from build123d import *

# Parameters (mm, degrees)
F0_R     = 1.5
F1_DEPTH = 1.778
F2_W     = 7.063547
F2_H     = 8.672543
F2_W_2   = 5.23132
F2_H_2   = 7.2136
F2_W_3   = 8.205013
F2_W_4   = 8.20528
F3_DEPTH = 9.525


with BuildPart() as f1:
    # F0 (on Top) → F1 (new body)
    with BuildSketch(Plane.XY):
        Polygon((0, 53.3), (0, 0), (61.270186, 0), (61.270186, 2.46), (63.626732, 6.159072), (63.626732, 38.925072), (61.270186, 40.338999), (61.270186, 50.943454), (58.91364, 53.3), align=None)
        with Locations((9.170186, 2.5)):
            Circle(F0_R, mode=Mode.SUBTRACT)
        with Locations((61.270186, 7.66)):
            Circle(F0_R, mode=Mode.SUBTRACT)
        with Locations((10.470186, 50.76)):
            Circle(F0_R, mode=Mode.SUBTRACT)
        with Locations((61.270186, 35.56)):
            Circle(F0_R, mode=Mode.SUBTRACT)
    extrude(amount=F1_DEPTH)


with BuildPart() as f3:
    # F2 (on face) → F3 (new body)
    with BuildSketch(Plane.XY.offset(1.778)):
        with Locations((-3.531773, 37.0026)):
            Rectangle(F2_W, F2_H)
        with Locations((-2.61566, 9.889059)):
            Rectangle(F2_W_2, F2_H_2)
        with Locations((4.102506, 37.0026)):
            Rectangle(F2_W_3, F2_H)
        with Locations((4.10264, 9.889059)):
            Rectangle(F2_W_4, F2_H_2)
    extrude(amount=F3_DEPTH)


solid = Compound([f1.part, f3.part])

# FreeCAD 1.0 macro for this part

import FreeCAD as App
import Part
import Sketcher
from FreeCAD import Vector
Q = App.Units.Quantity

doc = App.newDocument("Part")
body = doc.addObject("PartDesign::Body", "Body")

# Sketch on XY plane
sketch1 = doc.addObject("Sketcher::SketchObject", "Sketch")
body.addObject(sketch1)
sketch1.AttachmentSupport = (doc.XY_Plane, [""])
sketch1.MapMode = "FlatFace"
sketch1.addGeometry([
    Part.LineSegment(Vector(0, 53.3, 0), Vector(0, 0, 0)),  # 0
    Part.LineSegment(Vector(0, 0, 0), Vector(61.270186, 0, 0)),  # 1
    Part.LineSegment(Vector(61.270186, 0, 0), Vector(61.270186, 2.46, 0)),  # 2
    Part.LineSegment(Vector(61.270186, 2.46, 0), Vector(63.626732, 6.159072, 0)),  # 3
    Part.LineSegment(Vector(63.626732, 6.159072, 0), Vector(63.626732, 38.925072, 0)),  # 4
    Part.LineSegment(Vector(63.626732, 38.925072, 0), Vector(61.270186, 40.338999, 0)),  # 5
    Part.LineSegment(Vector(61.270186, 40.338999, 0), Vector(61.270186, 50.943454, 0)),  # 6
    Part.LineSegment(Vector(61.270186, 50.943454, 0), Vector(58.91364, 53.3, 0)),  # 7
    Part.LineSegment(Vector(58.91364, 53.3, 0), Vector(0, 53.3, 0)),  # 8
    Part.Circle(Vector(9.170186, 2.5, 0), Vector(0, 0, 1), 1.5),  # 9
    Part.Circle(Vector(61.270186, 7.66, 0), Vector(0, 0, 1), 1.5),  # 10
    Part.Circle(Vector(10.470186, 50.76, 0), Vector(0, 0, 1), 1.5),  # 11
    Part.Circle(Vector(61.270186, 35.56, 0), Vector(0, 0, 1), 1.5),  # 12
], False)
sketch1.addConstraint([
    Sketcher.Constraint("Coincident", 0, 2, 1, 1),
    Sketcher.Constraint("Coincident", 1, 2, 2, 1),
    Sketcher.Constraint("Coincident", 2, 2, 3, 1),
    Sketcher.Constraint("Coincident", 3, 2, 4, 1),
    Sketcher.Constraint("Coincident", 4, 2, 5, 1),
    Sketcher.Constraint("Coincident", 5, 2, 6, 1),
    Sketcher.Constraint("Coincident", 6, 2, 7, 1),
    Sketcher.Constraint("Coincident", 7, 2, 8, 1),
    Sketcher.Constraint("Coincident", 8, 2, 0, 1),
    Sketcher.Constraint("Vertical", 0),
    Sketcher.Constraint("Horizontal", 1),
    Sketcher.Constraint("Vertical", 2),
    Sketcher.Constraint("Vertical", 4),
    Sketcher.Constraint("Vertical", 6),
    Sketcher.Constraint("Horizontal", 8),
    Sketcher.Constraint("Coincident", 0, 2, -1, 1),
    Sketcher.Constraint("Equal", 9, 10),
    Sketcher.Constraint("Equal", 10, 11),
    Sketcher.Constraint("Equal", 11, 12),
    Sketcher.Constraint("Vertical", 10, 3, 12, 3),
    Sketcher.Constraint("Vertical", 12, 3, 1, 2),
    Sketcher.Constraint("Vertical", 2, 2, 5, 2),
    Sketcher.Constraint("Angle", 7, Q("135 deg")),
    Sketcher.Constraint("DistanceX", 11, 3, 10, 3, Q("2 in")),
    Sketcher.Constraint("DistanceY", 9, 3, 8, 2, Q("2 in")),
    Sketcher.Constraint("DistanceY", 4, 1, 4, 2, Q("1.29 in")),
    Sketcher.Constraint("DistanceY", -1, 1, 12, 3, Q("1.4 in")),
    Sketcher.Constraint("DistanceY", 9, 3, 11, 3, Q("1.9 in")),
    Sketcher.Constraint("Diameter", 9, Q("3 mm")),
    Sketcher.Constraint("DistanceY", 0, 2, 0, 1, Q("53.3 mm")),
    Sketcher.Constraint("DistanceY", 2, 1, 2, 2, Q("2.46 mm")),
    Sketcher.Constraint("DistanceX", 8, 2, 8, 1, Q("58.91364 mm")),
    Sketcher.Constraint("DistanceY", -1, 1, 10, 3, Q("7.66 mm")),
    Sketcher.Constraint("DistanceY", -1, 1, 5, 2, Q("40.338999 mm")),
    Sketcher.Constraint("DistanceX", 9, 3, 10, 3, Q("52.1 mm")),
    Sketcher.Constraint("Distance", 5, Q("2.748181 mm")),
    Sketcher.Constraint("Distance", 7, Q("3.332659 mm")),
    Sketcher.Constraint("DistanceX", -1, 1, 3, 2, Q("63.626732 mm")),
])
pad1 = doc.addObject("PartDesign::Pad", "Pad")
body.addObject(pad1)
pad1.Profile = sketch1
pad1.Length = Q("0.07 in")
body2 = doc.addObject("PartDesign::Body", "Body001")
body2.AllowCompound = True

# Sketch on XY plane
sketch2 = doc.addObject("Sketcher::SketchObject", "Sketch001")
body2.addObject(sketch2)
sketch2.AttachmentSupport = (doc.getObject("XY_Plane001"), [""])
sketch2.MapMode = "FlatFace"
sketch2.AttachmentOffset = App.Placement(Vector(0, 0, 0.07 * 25.4), App.Rotation())
sketch2.addGeometry([
    Part.LineSegment(Vector(-7.063547, 41.338872, 0), Vector(-7.063547, 32.666328, 0)),  # 0
    Part.LineSegment(Vector(-7.063547, 32.666328, 0), Vector(8.205013, 32.666328, 0)),  # 1
    Part.LineSegment(Vector(8.205013, 32.666328, 0), Vector(8.205013, 41.338872, 0)),  # 2
    Part.LineSegment(Vector(8.205013, 41.338872, 0), Vector(-7.063547, 41.338872, 0)),  # 3
    Part.LineSegment(Vector(-5.23132, 13.495859, 0), Vector(-5.23132, 6.282259, 0)),  # 4
    Part.LineSegment(Vector(-5.23132, 6.282259, 0), Vector(8.20528, 6.282259, 0)),  # 5
    Part.LineSegment(Vector(8.20528, 6.282259, 0), Vector(8.20528, 13.495859, 0)),  # 6
    Part.LineSegment(Vector(8.20528, 13.495859, 0), Vector(-5.23132, 13.495859, 0)),  # 7
], False)
sketch2.addConstraint([
    Sketcher.Constraint("Coincident", 0, 2, 1, 1),
    Sketcher.Constraint("Coincident", 1, 2, 2, 1),
    Sketcher.Constraint("Coincident", 2, 2, 3, 1),
    Sketcher.Constraint("Coincident", 3, 2, 0, 1),
    Sketcher.Constraint("Coincident", 4, 2, 5, 1),
    Sketcher.Constraint("Coincident", 5, 2, 6, 1),
    Sketcher.Constraint("Coincident", 6, 2, 7, 1),
    Sketcher.Constraint("Coincident", 7, 2, 4, 1),
    Sketcher.Constraint("Vertical", 0),
    Sketcher.Constraint("Horizontal", 1),
    Sketcher.Constraint("Vertical", 2),
    Sketcher.Constraint("Horizontal", 3),
    Sketcher.Constraint("Vertical", 4),
    Sketcher.Constraint("Horizontal", 5),
    Sketcher.Constraint("Vertical", 6),
    Sketcher.Constraint("Horizontal", 7),
    Sketcher.Constraint("DistanceX", 5, 1, 5, 2, Q("0.529 in")),
    Sketcher.Constraint("DistanceY", 4, 2, 4, 1, Q("0.284 in")),
    Sketcher.Constraint("DistanceX", 1, 1, 1, 2, Q("15.268559 mm")),
    Sketcher.Constraint("DistanceY", 0, 2, 0, 1, Q("8.672543 mm")),
    Sketcher.Constraint("DistanceY", -1, 1, 0, 2, Q("32.666328 mm")),
    Sketcher.Constraint("DistanceX", 4, 2, -1, 1, Q("5.23132 mm")),
    Sketcher.Constraint("DistanceY", -1, 1, 4, 2, Q("6.282259 mm")),
    Sketcher.Constraint("DistanceX", 0, 2, -1, 1, Q("7.063547 mm")),
])
pad2 = doc.addObject("PartDesign::Pad", "Pad001")
body2.addObject(pad2)
pad2.Profile = sketch2
pad2.Length = Q("0.375 in")

doc.recompute()
